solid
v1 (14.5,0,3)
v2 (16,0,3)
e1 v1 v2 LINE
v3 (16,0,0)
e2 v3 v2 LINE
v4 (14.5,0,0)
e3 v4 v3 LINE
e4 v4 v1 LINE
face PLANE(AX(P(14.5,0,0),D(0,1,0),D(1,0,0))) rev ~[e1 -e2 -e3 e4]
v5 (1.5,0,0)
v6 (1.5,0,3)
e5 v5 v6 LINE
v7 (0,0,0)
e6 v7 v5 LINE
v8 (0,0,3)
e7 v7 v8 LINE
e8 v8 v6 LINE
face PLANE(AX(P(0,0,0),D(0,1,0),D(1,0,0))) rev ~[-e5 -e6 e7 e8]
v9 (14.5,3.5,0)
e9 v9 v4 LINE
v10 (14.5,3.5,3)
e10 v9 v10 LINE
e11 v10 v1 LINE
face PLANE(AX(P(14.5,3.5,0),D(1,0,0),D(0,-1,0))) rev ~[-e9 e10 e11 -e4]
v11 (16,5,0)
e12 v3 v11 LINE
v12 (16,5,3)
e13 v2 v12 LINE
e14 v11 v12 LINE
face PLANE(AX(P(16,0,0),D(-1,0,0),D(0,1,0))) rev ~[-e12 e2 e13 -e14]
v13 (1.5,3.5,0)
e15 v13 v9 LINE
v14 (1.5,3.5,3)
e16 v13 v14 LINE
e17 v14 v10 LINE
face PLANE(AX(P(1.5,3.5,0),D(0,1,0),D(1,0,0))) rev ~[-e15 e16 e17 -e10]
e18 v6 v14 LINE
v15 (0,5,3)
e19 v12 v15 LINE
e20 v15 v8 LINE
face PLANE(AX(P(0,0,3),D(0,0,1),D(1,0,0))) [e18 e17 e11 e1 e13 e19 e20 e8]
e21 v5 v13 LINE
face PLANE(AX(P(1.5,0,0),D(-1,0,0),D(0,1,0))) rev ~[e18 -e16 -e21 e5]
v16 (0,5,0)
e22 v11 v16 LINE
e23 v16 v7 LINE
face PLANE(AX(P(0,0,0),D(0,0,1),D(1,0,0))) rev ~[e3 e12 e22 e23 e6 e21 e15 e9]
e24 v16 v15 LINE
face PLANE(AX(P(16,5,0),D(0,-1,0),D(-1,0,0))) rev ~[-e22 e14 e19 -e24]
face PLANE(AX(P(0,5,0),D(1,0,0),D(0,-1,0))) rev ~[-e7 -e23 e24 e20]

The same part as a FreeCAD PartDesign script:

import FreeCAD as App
import Part
import Sketcher


def add_polygon(sketch, points):
    """Adds a closed chain of lines whose ends are joined by coincident constraints."""
    first, n = sketch.GeometryCount, len(points)
    for a, b in zip(points, points[1:] + points[:1]):
        sketch.addGeometry(Part.LineSegment(App.Vector(*a, 0), App.Vector(*b, 0)), False)
    for i in range(n):
        sketch.addConstraint(Sketcher.Constraint("Coincident", first + i, 2, first + (i + 1) % n, 1))

doc = App.newDocument("Part")
body = doc.addObject("PartDesign::Body", "Body")

# Sketch on XY plane
sketch1 = body.newObject("Sketcher::SketchObject", "Sketch")
sketch1.AttachmentSupport = (doc.getObject("XY_Plane"), [""])
sketch1.MapMode = "FlatFace"
add_polygon(sketch1, [(0, 5), (0, 0), (1.5, 0), (1.5, 3.5), (14.5, 3.5), (14.5, 0), (16, 0), (16, 5)])  # lines 0-7
sketch1.addConstraint([
    Sketcher.Constraint("Vertical", 0),
    Sketcher.Constraint("Horizontal", 1),
    Sketcher.Constraint("Vertical", 2),
    Sketcher.Constraint("Horizontal", 3),
    Sketcher.Constraint("Vertical", 4),
    Sketcher.Constraint("Horizontal", 5),
    Sketcher.Constraint("Vertical", 6),
    Sketcher.Constraint("Horizontal", 7),
    Sketcher.Constraint("Coincident", 0, 2, -1, 1),
    Sketcher.Constraint("PointOnObject", 4, 2, -1),
    Sketcher.Constraint("Equal", 1, 5),
    Sketcher.Constraint("DistanceX", 3, 1, 3, 2, 13.0),
    Sketcher.Constraint("DistanceX", 1, 1, 1, 2, 1.5),
    Sketcher.Constraint("DistanceY", 2, 1, 2, 2, 3.5),
    Sketcher.Constraint("DistanceY", 3, 2, 6, 2, 1.5),
])
pad1 = body.newObject("PartDesign::Pad", "Pad")
pad1.Profile = sketch1
pad1.Length = 3

doc.recompute()
